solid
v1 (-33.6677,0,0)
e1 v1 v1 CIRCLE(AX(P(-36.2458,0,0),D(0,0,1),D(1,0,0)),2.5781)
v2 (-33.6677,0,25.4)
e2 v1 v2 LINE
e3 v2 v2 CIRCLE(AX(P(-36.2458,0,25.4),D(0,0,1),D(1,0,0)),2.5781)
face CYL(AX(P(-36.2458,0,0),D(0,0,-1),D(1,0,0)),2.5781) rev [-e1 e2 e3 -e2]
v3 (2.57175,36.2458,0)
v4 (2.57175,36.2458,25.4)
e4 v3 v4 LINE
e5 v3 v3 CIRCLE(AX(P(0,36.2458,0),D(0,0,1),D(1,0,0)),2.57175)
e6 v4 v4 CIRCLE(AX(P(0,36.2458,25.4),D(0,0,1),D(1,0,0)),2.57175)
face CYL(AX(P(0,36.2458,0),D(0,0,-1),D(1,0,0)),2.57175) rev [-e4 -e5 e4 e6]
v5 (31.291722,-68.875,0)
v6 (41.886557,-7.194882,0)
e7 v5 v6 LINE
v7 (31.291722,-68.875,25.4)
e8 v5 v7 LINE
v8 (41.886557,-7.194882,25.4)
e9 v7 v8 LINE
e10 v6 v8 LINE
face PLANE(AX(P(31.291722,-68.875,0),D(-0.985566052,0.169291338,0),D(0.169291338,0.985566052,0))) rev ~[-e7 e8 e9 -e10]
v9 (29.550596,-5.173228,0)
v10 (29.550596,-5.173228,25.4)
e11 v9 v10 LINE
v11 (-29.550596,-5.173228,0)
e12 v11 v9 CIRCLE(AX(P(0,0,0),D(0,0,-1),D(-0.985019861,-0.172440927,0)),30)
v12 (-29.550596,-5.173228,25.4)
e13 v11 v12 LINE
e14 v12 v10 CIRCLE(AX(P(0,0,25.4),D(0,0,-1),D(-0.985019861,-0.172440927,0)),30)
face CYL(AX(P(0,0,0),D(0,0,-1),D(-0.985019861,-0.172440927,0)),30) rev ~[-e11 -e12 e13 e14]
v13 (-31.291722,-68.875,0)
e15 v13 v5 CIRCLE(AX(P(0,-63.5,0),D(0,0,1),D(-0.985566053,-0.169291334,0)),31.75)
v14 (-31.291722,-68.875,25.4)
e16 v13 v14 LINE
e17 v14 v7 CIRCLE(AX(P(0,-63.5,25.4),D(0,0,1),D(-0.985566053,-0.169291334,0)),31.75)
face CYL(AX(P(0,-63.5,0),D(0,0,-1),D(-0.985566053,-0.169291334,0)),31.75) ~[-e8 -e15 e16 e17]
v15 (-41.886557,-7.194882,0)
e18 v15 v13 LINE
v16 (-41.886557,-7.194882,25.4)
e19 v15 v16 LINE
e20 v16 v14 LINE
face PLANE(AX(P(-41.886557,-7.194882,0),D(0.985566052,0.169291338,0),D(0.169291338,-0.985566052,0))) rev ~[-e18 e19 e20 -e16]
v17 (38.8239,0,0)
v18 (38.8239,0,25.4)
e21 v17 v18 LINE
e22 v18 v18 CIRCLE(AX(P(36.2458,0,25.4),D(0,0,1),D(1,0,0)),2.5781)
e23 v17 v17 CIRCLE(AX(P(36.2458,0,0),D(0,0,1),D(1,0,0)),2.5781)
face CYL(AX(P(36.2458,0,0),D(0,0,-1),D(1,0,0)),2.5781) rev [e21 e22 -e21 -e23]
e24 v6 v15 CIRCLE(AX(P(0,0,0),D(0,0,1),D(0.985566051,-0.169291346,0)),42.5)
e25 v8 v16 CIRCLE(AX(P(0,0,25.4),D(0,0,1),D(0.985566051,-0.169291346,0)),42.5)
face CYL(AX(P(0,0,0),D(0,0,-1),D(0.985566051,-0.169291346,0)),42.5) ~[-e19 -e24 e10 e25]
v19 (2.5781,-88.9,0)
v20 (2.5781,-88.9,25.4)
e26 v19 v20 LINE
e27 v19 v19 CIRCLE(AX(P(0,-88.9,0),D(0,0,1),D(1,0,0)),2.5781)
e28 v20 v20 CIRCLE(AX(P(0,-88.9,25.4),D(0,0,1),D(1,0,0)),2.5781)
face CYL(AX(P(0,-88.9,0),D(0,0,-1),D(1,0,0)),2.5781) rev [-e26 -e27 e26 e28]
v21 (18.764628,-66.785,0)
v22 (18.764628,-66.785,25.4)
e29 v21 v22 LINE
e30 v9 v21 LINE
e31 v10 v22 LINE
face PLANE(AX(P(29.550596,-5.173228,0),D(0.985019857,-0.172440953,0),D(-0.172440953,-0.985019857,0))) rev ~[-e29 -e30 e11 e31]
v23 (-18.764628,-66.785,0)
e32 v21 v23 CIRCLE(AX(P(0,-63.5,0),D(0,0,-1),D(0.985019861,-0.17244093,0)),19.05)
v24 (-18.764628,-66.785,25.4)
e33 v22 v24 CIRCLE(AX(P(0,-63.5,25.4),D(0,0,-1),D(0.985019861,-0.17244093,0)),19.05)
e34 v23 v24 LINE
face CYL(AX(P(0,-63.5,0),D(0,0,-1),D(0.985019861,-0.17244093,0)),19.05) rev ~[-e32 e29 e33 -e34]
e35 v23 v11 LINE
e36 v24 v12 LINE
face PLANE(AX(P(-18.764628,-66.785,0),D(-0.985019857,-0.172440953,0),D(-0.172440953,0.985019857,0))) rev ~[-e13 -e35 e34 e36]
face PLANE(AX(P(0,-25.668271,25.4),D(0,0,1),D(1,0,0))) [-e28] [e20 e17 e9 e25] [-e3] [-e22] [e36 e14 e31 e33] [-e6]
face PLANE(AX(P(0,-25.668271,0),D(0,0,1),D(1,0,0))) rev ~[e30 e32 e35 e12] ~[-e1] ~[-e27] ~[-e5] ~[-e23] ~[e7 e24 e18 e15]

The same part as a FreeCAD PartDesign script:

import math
import FreeCAD as App
import Part
import Sketcher

V = App.Vector
Q = App.Units.Quantity

doc = App.newDocument("Part")
body = doc.addObject("PartDesign::Body", "Body")

sketch1 = body.newObject("Sketcher::SketchObject", "Sketch")
sketch1.AttachmentSupport = (doc.getObject("XY_Plane"), [""])
sketch1.MapMode = "FlatFace"
sketch1.addGeometry(Part.ArcOfCircle(Part.Circle(V(0, -63.5, 0), V(0, 0, 1), 31.7), math.radians(-170), math.radians(-10)), False)
sketch1.addGeometry(Part.LineSegment(V(31.3, -68.9, 0), V(41.9, -7.2, 0)), False)
sketch1.addGeometry(Part.ArcOfCircle(Part.Circle(V(0, 0, 0), V(0, 0, 1), 42.5), math.radians(-10), math.radians(190)), False)
sketch1.addGeometry(Part.LineSegment(V(-41.9, -7.2, 0), V(-31.3, -68.9, 0)), False)
sketch1.addGeometry(Part.Circle(V(0, -88.9, 0), V(0, 0, 1), 2.6), False)
sketch1.addGeometry(Part.Circle(V(-36.2, 0, 0), V(0, 0, 1), 2.6), False)
sketch1.addGeometry(Part.LineSegment(V(-18.8, -66.8, 0), V(-29.6, -5.2, 0)), False)
sketch1.addGeometry(Part.ArcOfCircle(Part.Circle(V(0, 0, 0), V(0, 0, 1), 30), math.radians(-10), math.radians(190)), False)
sketch1.addGeometry(Part.LineSegment(V(29.6, -5.2, 0), V(18.8, -66.8, 0)), False)
sketch1.addGeometry(Part.ArcOfCircle(Part.Circle(V(0, -63.5, 0), V(0, 0, 1), 19), math.radians(-170), math.radians(-10)), False)
sketch1.addGeometry(Part.Circle(V(36.2, 0, 0), V(0, 0, 1), 2.6), False)
sketch1.addGeometry(Part.Circle(V(0, 36.2, 0), V(0, 0, 1), 2.6), False)
sketch1.addConstraint(Sketcher.Constraint("Tangent", 0, 2, 1, 1))
sketch1.addConstraint(Sketcher.Constraint("Tangent", 1, 2, 2, 1))
sketch1.addConstraint(Sketcher.Constraint("Tangent", 2, 2, 3, 1))
sketch1.addConstraint(Sketcher.Constraint("Tangent", 3, 2, 0, 1))
sketch1.addConstraint(Sketcher.Constraint("Tangent", 6, 2, 7, 2))
sketch1.addConstraint(Sketcher.Constraint("Tangent", 7, 1, 8, 1))
sketch1.addConstraint(Sketcher.Constraint("Tangent", 8, 2, 9, 2))
sketch1.addConstraint(Sketcher.Constraint("Tangent", 9, 1, 6, 1))
sketch1.addConstraint(Sketcher.Constraint("Coincident", 2, 3, -1, 1))
sketch1.addConstraint(Sketcher.Constraint("Coincident", 7, 3, -1, 1))
sketch1.addConstraint(Sketcher.Constraint("Coincident", 9, 3, 0, 3))
sketch1.addConstraint(Sketcher.Constraint("Equal", 4, 5))
sketch1.addConstraint(Sketcher.Constraint("Equal", 5, 10))
sketch1.addConstraint(Sketcher.Constraint("Symmetric", 5, 3, 10, 3, -1, 1))
sketch1.addConstraint(Sketcher.Constraint("PointOnObject", 0, 3, -2))
sketch1.addConstraint(Sketcher.Constraint("PointOnObject", 4, 3, -2))
sketch1.addConstraint(Sketcher.Constraint("PointOnObject", 5, 3, -1))
sketch1.addConstraint(Sketcher.Constraint("PointOnObject", 11, 3, -2))
sketch1.addConstraint(Sketcher.Constraint("Radius", 0, Q("1.25 in")))
sketch1.addConstraint(Sketcher.Constraint("Radius", 9, Q("0.75 in")))
sketch1.addConstraint(Sketcher.Constraint("Diameter", 4, Q("0.203 in")))
sketch1.addConstraint(Sketcher.Constraint("DistanceY", 4, 3, 0, 3, Q("1 in")))
sketch1.addConstraint(Sketcher.Constraint("Diameter", 11, Q("0.2025 in")))
sketch1.addConstraint(Sketcher.Constraint("DistanceY", 0, 3, -1, 1, Q("2.5 in")))
sketch1.addConstraint(Sketcher.Constraint("Radius", 2, Q("42.5 mm")))
sketch1.addConstraint(Sketcher.Constraint("Radius", 7, Q("30 mm")))
sketch1.addConstraint(Sketcher.Constraint("DistanceX", 5, 3, -1, 1, Q("1.427 in")))
sketch1.addConstraint(Sketcher.Constraint("DistanceY", -1, 1, 11, 3, Q("1.427 in")))
pad1 = body.newObject("PartDesign::Pad", "Pad")
pad1.Profile = sketch1
pad1.Length = Q("1 in")

doc.recompute()
